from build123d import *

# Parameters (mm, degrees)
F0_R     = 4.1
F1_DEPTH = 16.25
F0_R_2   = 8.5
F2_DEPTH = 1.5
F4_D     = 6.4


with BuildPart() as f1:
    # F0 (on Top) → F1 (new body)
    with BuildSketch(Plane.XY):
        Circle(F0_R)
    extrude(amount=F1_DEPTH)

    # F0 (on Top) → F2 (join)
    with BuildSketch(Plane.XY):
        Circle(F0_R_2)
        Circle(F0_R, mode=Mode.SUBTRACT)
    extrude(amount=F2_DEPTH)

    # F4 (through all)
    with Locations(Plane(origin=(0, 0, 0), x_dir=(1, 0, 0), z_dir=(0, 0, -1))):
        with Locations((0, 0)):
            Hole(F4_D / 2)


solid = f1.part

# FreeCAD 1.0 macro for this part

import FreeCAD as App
import Part
import Sketcher

V = App.Vector

doc = App.newDocument("Part")
body = doc.addObject("PartDesign::Body", "Body")

# Sketch on XY plane
sketch1 = body.newObject("Sketcher::SketchObject", "Sketch")
sketch1.AttachmentSupport = (doc.getObject("XY_Plane"), [""])
sketch1.MapMode = "FlatFace"
sketch1.addGeometry(Part.Circle(V(0, 0, 0), V(0, 0, 1), 4.1), False)
sketch1.addConstraint([
    Sketcher.Constraint("Coincident", 0, 3, -1, 1),
    Sketcher.Constraint("Diameter", 0, 8.2),
])
pad1 = body.newObject("PartDesign::Pad", "Pad")
pad1.Profile = sketch1
pad1.Length = 16.25

# Sketch on XY plane
sketch2 = body.newObject("Sketcher::SketchObject", "Sketch001")
sketch2.AttachmentSupport = (doc.getObject("XY_Plane"), [""])
sketch2.MapMode = "FlatFace"
sketch2.addGeometry([
    Part.Circle(V(0, 0, 0), V(0, 0, 1), 8.5),
    Part.Circle(V(0, 0, 0), V(0, 0, 1), 4.1),
], False)
sketch2.addConstraint([
    Sketcher.Constraint("Coincident", 0, 3, -1, 1),
    Sketcher.Constraint("Coincident", 1, 3, -1, 1),
    Sketcher.Constraint("Diameter", 0, 17.0),
    Sketcher.Constraint("Diameter", 1, 8.2),
])
pad2 = body.newObject("PartDesign::Pad", "Pad001")
pad2.Profile = sketch2
pad2.Length = 1.5

# Sketch on XY plane
sketch3 = body.newObject("Sketcher::SketchObject", "Sketch002")
sketch3.AttachmentSupport = (doc.getObject("XY_Plane"), [""])
sketch3.MapMode = "FlatFace"
sketch3.addGeometry(Part.Circle(V(0, 0, 0), V(0, 0, 1), 3.2), False)
sketch3.addConstraint([
    Sketcher.Constraint("Coincident", 0, 3, -1, 1),
    Sketcher.Constraint("Diameter", 0, 6.4),
])
doc.recompute()
hole = body.newObject("PartDesign::Hole", "Hole")
hole.Profile = sketch3
hole.ThreadType = "None"
hole.Diameter = 6.4
hole.DepthType = "ThroughAll"
hole.Reversed = True

doc.recompute()
